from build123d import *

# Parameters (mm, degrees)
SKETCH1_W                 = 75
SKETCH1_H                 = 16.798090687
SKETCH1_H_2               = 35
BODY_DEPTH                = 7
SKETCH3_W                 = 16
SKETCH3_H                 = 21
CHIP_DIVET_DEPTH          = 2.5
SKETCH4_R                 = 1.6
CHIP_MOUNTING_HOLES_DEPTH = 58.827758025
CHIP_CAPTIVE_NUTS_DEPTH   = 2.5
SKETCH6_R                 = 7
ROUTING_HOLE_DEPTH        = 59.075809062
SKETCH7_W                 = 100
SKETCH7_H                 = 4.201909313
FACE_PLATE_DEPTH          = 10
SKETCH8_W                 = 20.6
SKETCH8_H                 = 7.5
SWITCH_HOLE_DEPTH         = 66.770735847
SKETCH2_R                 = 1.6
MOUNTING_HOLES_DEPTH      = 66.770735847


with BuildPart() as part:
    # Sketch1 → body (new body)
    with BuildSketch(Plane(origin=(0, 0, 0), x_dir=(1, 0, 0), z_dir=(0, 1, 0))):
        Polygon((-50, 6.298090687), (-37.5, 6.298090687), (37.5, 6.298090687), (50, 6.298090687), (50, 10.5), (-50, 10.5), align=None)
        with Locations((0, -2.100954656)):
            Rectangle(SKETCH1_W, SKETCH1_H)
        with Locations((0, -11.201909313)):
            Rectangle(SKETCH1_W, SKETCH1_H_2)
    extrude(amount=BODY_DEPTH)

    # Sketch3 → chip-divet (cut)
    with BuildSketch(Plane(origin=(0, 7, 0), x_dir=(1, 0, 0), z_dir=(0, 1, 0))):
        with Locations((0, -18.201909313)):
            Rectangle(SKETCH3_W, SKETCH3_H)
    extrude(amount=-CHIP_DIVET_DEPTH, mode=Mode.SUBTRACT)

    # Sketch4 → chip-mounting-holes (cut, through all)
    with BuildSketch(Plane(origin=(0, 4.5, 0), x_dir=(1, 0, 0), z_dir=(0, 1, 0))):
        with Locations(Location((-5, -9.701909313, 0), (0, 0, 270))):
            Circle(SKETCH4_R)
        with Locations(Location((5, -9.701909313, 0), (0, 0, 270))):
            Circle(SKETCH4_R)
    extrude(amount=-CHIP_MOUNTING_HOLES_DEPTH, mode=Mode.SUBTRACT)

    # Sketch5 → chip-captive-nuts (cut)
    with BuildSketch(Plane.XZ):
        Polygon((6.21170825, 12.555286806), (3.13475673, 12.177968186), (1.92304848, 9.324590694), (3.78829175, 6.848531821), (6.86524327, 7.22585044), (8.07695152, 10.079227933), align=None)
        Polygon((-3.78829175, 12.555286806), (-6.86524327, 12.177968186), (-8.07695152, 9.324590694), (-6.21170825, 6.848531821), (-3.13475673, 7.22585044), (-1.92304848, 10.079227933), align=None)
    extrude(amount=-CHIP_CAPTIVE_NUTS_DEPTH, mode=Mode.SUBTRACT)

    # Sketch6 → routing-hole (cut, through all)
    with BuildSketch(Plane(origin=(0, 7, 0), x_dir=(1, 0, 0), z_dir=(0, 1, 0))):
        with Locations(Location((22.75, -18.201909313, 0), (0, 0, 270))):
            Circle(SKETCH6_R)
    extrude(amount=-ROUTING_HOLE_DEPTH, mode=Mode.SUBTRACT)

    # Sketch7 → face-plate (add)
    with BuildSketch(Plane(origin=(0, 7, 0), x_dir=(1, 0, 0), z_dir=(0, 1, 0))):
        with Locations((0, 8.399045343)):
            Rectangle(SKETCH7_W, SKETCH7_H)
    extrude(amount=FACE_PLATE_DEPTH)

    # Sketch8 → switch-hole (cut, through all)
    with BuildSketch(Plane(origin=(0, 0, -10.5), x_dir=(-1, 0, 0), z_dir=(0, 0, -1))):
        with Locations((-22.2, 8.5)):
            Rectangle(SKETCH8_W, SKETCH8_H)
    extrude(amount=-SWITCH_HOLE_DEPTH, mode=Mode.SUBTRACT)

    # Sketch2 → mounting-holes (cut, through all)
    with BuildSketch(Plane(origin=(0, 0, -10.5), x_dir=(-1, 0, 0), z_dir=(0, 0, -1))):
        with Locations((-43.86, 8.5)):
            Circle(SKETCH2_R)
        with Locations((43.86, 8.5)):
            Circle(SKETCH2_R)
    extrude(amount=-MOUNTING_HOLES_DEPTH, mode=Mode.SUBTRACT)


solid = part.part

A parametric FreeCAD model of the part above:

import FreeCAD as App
import Part
import Sketcher

V = App.Vector
Q = App.Units.Quantity

doc = App.newDocument("Part")
params = doc.addObject("Spreadsheet::Sheet", "Params")
for row, (alias, value) in enumerate([
    ("sketch1_width", "75 mm"),
    ("sketch1_width2", "100 mm"),
    ("sketch1_height", "35 mm"),
    ("pad1_length", "7 mm"),
    ("sketch2_width", "16 mm"),
    ("sketch2_height", "21 mm"),
    ("pocket1_length", "2.5 mm"),
    ("sketch3_diameter", "3.2 mm"),
    ("sketch4_length", "3.1 mm"),
    ("pocket3_length", "2.5 mm"),
    ("sketch5_diameter", "14 mm"),
    ("sketch6_width", "100 mm"),
    ("pad2_length", "10 mm"),
    ("sketch7_width", "20.6 mm"),
    ("sketch7_height", "7.5 mm"),
    ("sketch8_diameter", "3.2 mm"),
], start=1):
    params.set(f"A{row}", alias)
    params.set(f"B{row}", "=" + value)
    params.setAlias(f"B{row}", alias)

body = doc.addObject("PartDesign::Body", "Body")

sketch1 = body.newObject("Sketcher::SketchObject", "Sketch")
sketch1.AttachmentSupport = (doc.getObject("XZ_Plane"), [""])
sketch1.MapMode = "FlatFace"
sketch1.addGeometry([
    Part.LineSegment(V(-50, -10.5, 0), V(-50, -6.3, 0)),
    Part.LineSegment(V(-50, -6.3, 0), V(-37.5, -6.3, 0)),
    Part.LineSegment(V(-37.5, -6.3, 0), V(-37.5, 28.7, 0)),
    Part.LineSegment(V(-37.5, 28.7, 0), V(37.5, 28.7, 0)),
    Part.LineSegment(V(37.5, 28.7, 0), V(37.5, -6.3, 0)),
    Part.LineSegment(V(37.5, -6.3, 0), V(50, -6.3, 0)),
    Part.LineSegment(V(50, -6.3, 0), V(50, -10.5, 0)),
    Part.LineSegment(V(50, -10.5, 0), V(-50, -10.5, 0)),
], False)
sketch1.addConstraint([
    Sketcher.Constraint("Coincident", 0, 2, 1, 1),
    Sketcher.Constraint("Coincident", 1, 2, 2, 1),
    Sketcher.Constraint("Coincident", 2, 2, 3, 1),
    Sketcher.Constraint("Coincident", 3, 2, 4, 1),
    Sketcher.Constraint("Coincident", 4, 2, 5, 1),
    Sketcher.Constraint("Coincident", 5, 2, 6, 1),
    Sketcher.Constraint("Coincident", 6, 2, 7, 1),
    Sketcher.Constraint("Coincident", 7, 2, 0, 1),
    Sketcher.Constraint("Vertical", 0),
    Sketcher.Constraint("Horizontal", 1),
    Sketcher.Constraint("Vertical", 2),
    Sketcher.Constraint("Horizontal", 3),
    Sketcher.Constraint("Vertical", 4),
    Sketcher.Constraint("Horizontal", 5),
    Sketcher.Constraint("Vertical", 6),
    Sketcher.Constraint("Horizontal", 7),
    Sketcher.Constraint("Symmetric", 1, 2, 4, 2, -2),
    Sketcher.Constraint("Equal", 1, 5),
    Sketcher.Constraint("DistanceX", 3, 1, 3, 2, Q("75 mm")),
    Sketcher.Constraint("DistanceX", 7, 2, 7, 1, Q("100 mm")),
    Sketcher.Constraint("DistanceY", 2, 1, 2, 2, Q("35 mm")),
    Sketcher.Constraint("DistanceY", 6, 2, -1, 1, Q("10.5 mm")),
    Sketcher.Constraint("DistanceY", 0, 1, 0, 2, Q("4.201909 mm")),
])
sketch1.setExpression("Constraints[18]", "Params.sketch1_width")
sketch1.setExpression("Constraints[19]", "Params.sketch1_width2")
sketch1.setExpression("Constraints[20]", "Params.sketch1_height")
pad1 = body.newObject("PartDesign::Pad", "Pad")
pad1.Profile = sketch1
pad1.setExpression("Length", "Params.pad1_length")
pad1.Reversed = True

sketch2 = body.newObject("Sketcher::SketchObject", "Sketch001")
sketch2.AttachmentSupport = (doc.getObject("XZ_Plane"), [""])
sketch2.MapMode = "FlatFace"
sketch2.AttachmentOffset = App.Placement(V(0, 0, -7), App.Rotation())
sketch2.addGeometry([
    Part.LineSegment(V(-8, 8, 0), V(-8, 29, 0)),
    Part.LineSegment(V(-8, 29, 0), V(8, 29, 0)),
    Part.LineSegment(V(8, 29, 0), V(8, 8, 0)),
    Part.LineSegment(V(8, 8, 0), V(-8, 8, 0)),
], False)
sketch2.addConstraint([
    Sketcher.Constraint("Coincident", 0, 2, 1, 1),
    Sketcher.Constraint("Coincident", 1, 2, 2, 1),
    Sketcher.Constraint("Coincident", 2, 2, 3, 1),
    Sketcher.Constraint("Coincident", 3, 2, 0, 1),
    Sketcher.Constraint("Vertical", 0),
    Sketcher.Constraint("Horizontal", 1),
    Sketcher.Constraint("Vertical", 2),
    Sketcher.Constraint("Horizontal", 3),
    Sketcher.Constraint("DistanceX", 1, 1, 1, 2, Q("16 mm")),
    Sketcher.Constraint("DistanceY", 0, 1, 0, 2, Q("21 mm")),
    Sketcher.Constraint("DistanceX", 0, 2, -1, 1, Q("8 mm")),
    Sketcher.Constraint("DistanceY", -1, 1, 0, 2, Q("28.701909 mm")),
])
sketch2.setExpression("Constraints[8]", "Params.sketch2_width")
sketch2.setExpression("Constraints[9]", "Params.sketch2_height")
pocket1 = body.newObject("PartDesign::Pocket", "Pocket")
pocket1.Profile = sketch2
pocket1.setExpression("Length", "Params.pocket1_length")
pocket1.Reversed = True

sketch3 = body.newObject("Sketcher::SketchObject", "Sketch002")
sketch3.AttachmentSupport = (doc.getObject("XZ_Plane"), [""])
sketch3.MapMode = "FlatFace"
sketch3.AttachmentOffset = App.Placement(V(0, 0, -4.5), App.Rotation())
sketch3.addGeometry([
    Part.Circle(V(-5, 9.7, 0), V(0, 0, 1), 1.6),
    Part.Circle(V(5, 9.7, 0), V(0, 0, 1), 1.6),
], False)
sketch3.addConstraint([
    Sketcher.Constraint("Equal", 0, 1),
    Sketcher.Constraint("Symmetric", 0, 3, 1, 3, -2),
    Sketcher.Constraint("Diameter", 0, Q("3.2 mm")),
    Sketcher.Constraint("DistanceX", 0, 3, -1, 1, Q("5 mm")),
    Sketcher.Constraint("DistanceY", -1, 1, 0, 3, Q("9.701909 mm")),
])
sketch3.setExpression("Constraints[2]", "Params.sketch3_diameter")
pocket2 = body.newObject("PartDesign::Pocket", "Pocket001")
pocket2.Profile = sketch3
pocket2.Type = "ThroughAll"
pocket2.Reversed = True

sketch4 = body.newObject("Sketcher::SketchObject", "Sketch003")
sketch4.AttachmentSupport = (doc.getObject("XZ_Plane"), [""])
sketch4.MapMode = "FlatFace"
sketch4.addGeometry([
    Part.LineSegment(V(6.2, 12.6, 0), V(3.1, 12.2, 0)),
    Part.LineSegment(V(3.1, 12.2, 0), V(1.9, 9.3, 0)),
    Part.LineSegment(V(1.9, 9.3, 0), V(3.8, 6.8, 0)),
    Part.LineSegment(V(3.8, 6.8, 0), V(6.9, 7.2, 0)),
    Part.LineSegment(V(6.9, 7.2, 0), V(8.1, 10.1, 0)),
    Part.LineSegment(V(8.1, 10.1, 0), V(6.2, 12.6, 0)),
    Part.LineSegment(V(-3.8, 12.6, 0), V(-6.9, 12.2, 0)),
    Part.LineSegment(V(-6.9, 12.2, 0), V(-8.1, 9.3, 0)),
    Part.LineSegment(V(-8.1, 9.3, 0), V(-6.2, 6.8, 0)),
    Part.LineSegment(V(-6.2, 6.8, 0), V(-3.1, 7.2, 0)),
    Part.LineSegment(V(-3.1, 7.2, 0), V(-1.9, 10.1, 0)),
    Part.LineSegment(V(-1.9, 10.1, 0), V(-3.8, 12.6, 0)),
], False)
sketch4.addConstraint([
    Sketcher.Constraint("Coincident", 0, 2, 1, 1),
    Sketcher.Constraint("Coincident", 1, 2, 2, 1),
    Sketcher.Constraint("Coincident", 2, 2, 3, 1),
    Sketcher.Constraint("Coincident", 3, 2, 4, 1),
    Sketcher.Constraint("Coincident", 4, 2, 5, 1),
    Sketcher.Constraint("Coincident", 5, 2, 0, 1),
    Sketcher.Constraint("Coincident", 6, 2, 7, 1),
    Sketcher.Constraint("Coincident", 7, 2, 8, 1),
    Sketcher.Constraint("Coincident", 8, 2, 9, 1),
    Sketcher.Constraint("Coincident", 9, 2, 10, 1),
    Sketcher.Constraint("Coincident", 10, 2, 11, 1),
    Sketcher.Constraint("Coincident", 11, 2, 6, 1),
    Sketcher.Constraint("Parallel", 0, 3),
    Sketcher.Constraint("Parallel", 1, 4),
    Sketcher.Constraint("Parallel", 2, 5),
    Sketcher.Constraint("Parallel", 3, 6),
    Sketcher.Constraint("Parallel", 4, 7),
    Sketcher.Constraint("Parallel", 5, 8),
    Sketcher.Constraint("Parallel", 6, 9),
    Sketcher.Constraint("Parallel", 7, 10),
    Sketcher.Constraint("Parallel", 8, 11),
    Sketcher.Constraint("Horizontal", 0, 2, 6, 2),
    Sketcher.Constraint("Horizontal", 1, 2, 7, 2),
    Sketcher.Constraint("Horizontal", 2, 2, 8, 2),
    Sketcher.Constraint("Horizontal", 3, 2, 9, 2),
    Sketcher.Constraint("Horizontal", 4, 2, 10, 2),
    Sketcher.Constraint("Equal", 0, 1),
    Sketcher.Constraint("Equal", 1, 2),
    Sketcher.Constraint("Equal", 2, 3),
    Sketcher.Constraint("DistanceX", 6, 2, 0, 2, Q("10 mm")),
    Sketcher.Constraint("Distance", 0, Q("3.1 mm")),
    Sketcher.Constraint("DistanceY", -1, 1, 0, 2, Q("12.177968 mm")),
    Sketcher.Constraint("DistanceX", -1, 1, 1, 2, Q("1.923048 mm")),
    Sketcher.Constraint("DistanceY", -1, 1, 1, 2, Q("9.324591 mm")),
    Sketcher.Constraint("DistanceX", -1, 1, 2, 2, Q("3.788292 mm")),
    Sketcher.Constraint("DistanceY", -1, 1, 3, 2, Q("7.22585 mm")),
])
sketch4.setExpression("Constraints[30]", "Params.sketch4_length")
pocket3 = body.newObject("PartDesign::Pocket", "Pocket002")
pocket3.Profile = sketch4
pocket3.setExpression("Length", "Params.pocket3_length")

sketch5 = body.newObject("Sketcher::SketchObject", "Sketch004")
sketch5.AttachmentSupport = (doc.getObject("XZ_Plane"), [""])
sketch5.MapMode = "FlatFace"
sketch5.AttachmentOffset = App.Placement(V(0, 0, -7), App.Rotation())
sketch5.addGeometry(Part.Circle(V(23, 18, 0), V(0, 0, 1), 7), False)
sketch5.addConstraint([
    Sketcher.Constraint("Diameter", 0, Q("14 mm")),
    Sketcher.Constraint("DistanceX", -1, 1, 0, 3, Q("22.75 mm")),
    Sketcher.Constraint("DistanceY", -1, 1, 0, 3, Q("18.201909 mm")),
])
sketch5.setExpression("Constraints[0]", "Params.sketch5_diameter")
pocket4 = body.newObject("PartDesign::Pocket", "Pocket003")
pocket4.Profile = sketch5
pocket4.Type = "ThroughAll"
pocket4.Reversed = True

sketch6 = body.newObject("Sketcher::SketchObject", "Sketch005")
sketch6.AttachmentSupport = (doc.getObject("XZ_Plane"), [""])
sketch6.MapMode = "FlatFace"
sketch6.AttachmentOffset = App.Placement(V(0, 0, -7), App.Rotation())
sketch6.addGeometry([
    Part.LineSegment(V(-50, -10.5, 0), V(-50, -6.3, 0)),
    Part.LineSegment(V(-50, -6.3, 0), V(50, -6.3, 0)),
    Part.LineSegment(V(50, -6.3, 0), V(50, -10.5, 0)),
    Part.LineSegment(V(50, -10.5, 0), V(-50, -10.5, 0)),
], False)
sketch6.addConstraint([
    Sketcher.Constraint("Coincident", 0, 2, 1, 1),
    Sketcher.Constraint("Coincident", 1, 2, 2, 1),
    Sketcher.Constraint("Coincident", 2, 2, 3, 1),
    Sketcher.Constraint("Coincident", 3, 2, 0, 1),
    Sketcher.Constraint("Vertical", 0),
    Sketcher.Constraint("Horizontal", 1),
    Sketcher.Constraint("Vertical", 2),
    Sketcher.Constraint("Horizontal", 3),
    Sketcher.Constraint("DistanceX", 1, 1, 1, 2, Q("100 mm")),
    Sketcher.Constraint("DistanceX", 0, 2, -1, 1, Q("50 mm")),
    Sketcher.Constraint("DistanceY", 2, 2, -1, 1, Q("10.5 mm")),
    Sketcher.Constraint("DistanceY", 0, 1, 0, 2, Q("4.201909 mm")),
])
sketch6.setExpression("Constraints[8]", "Params.sketch6_width")
pad2 = body.newObject("PartDesign::Pad", "Pad001")
pad2.Profile = sketch6
pad2.setExpression("Length", "Params.pad2_length")
pad2.Reversed = True

sketch7 = body.newObject("Sketcher::SketchObject", "Sketch006")
sketch7.AttachmentSupport = (doc.getObject("XY_Plane"), [""])
sketch7.MapMode = "FlatFace"
sketch7.AttachmentOffset = App.Placement(V(0, 0, -10.5), App.Rotation())
sketch7.addGeometry([
    Part.LineSegment(V(32, 12, 0), V(32, 5, 0)),
    Part.LineSegment(V(32, 5, 0), V(12, 5, 0)),
    Part.LineSegment(V(12, 5, 0), V(12, 12, 0)),
    Part.LineSegment(V(12, 12, 0), V(32, 12, 0)),
], False)
sketch7.addConstraint([
    Sketcher.Constraint("Coincident", 0, 2, 1, 1),
    Sketcher.Constraint("Coincident", 1, 2, 2, 1),
    Sketcher.Constraint("Coincident", 2, 2, 3, 1),
    Sketcher.Constraint("Coincident", 3, 2, 0, 1),
    Sketcher.Constraint("Vertical", 0),
    Sketcher.Constraint("Horizontal", 1),
    Sketcher.Constraint("Vertical", 2),
    Sketcher.Constraint("Horizontal", 3),
    Sketcher.Constraint("DistanceX", 1, 2, 1, 1, Q("20.6 mm")),
    Sketcher.Constraint("DistanceY", 0, 2, 0, 1, Q("7.5 mm")),
    Sketcher.Constraint("DistanceX", -1, 1, 0, 2, Q("32.5 mm")),
    Sketcher.Constraint("DistanceY", -1, 1, 0, 2, Q("4.75 mm")),
])
sketch7.setExpression("Constraints[8]", "Params.sketch7_width")
sketch7.setExpression("Constraints[9]", "Params.sketch7_height")
pocket5 = body.newObject("PartDesign::Pocket", "Pocket004")
pocket5.Profile = sketch7
pocket5.Type = "ThroughAll"
pocket5.Reversed = True

sketch8 = body.newObject("Sketcher::SketchObject", "Sketch007")
sketch8.AttachmentSupport = (doc.getObject("XY_Plane"), [""])
sketch8.MapMode = "FlatFace"
sketch8.AttachmentOffset = App.Placement(V(0, 0, -10.5), App.Rotation())
sketch8.addGeometry([
    Part.Circle(V(43.9, 8.5, 0), V(0, 0, 1), 1.6),
    Part.Circle(V(-43.9, 8.5, 0), V(0, 0, 1), 1.6),
], False)
sketch8.addConstraint([
    Sketcher.Constraint("Equal", 0, 1),
    Sketcher.Constraint("Symmetric", 0, 3, 1, 3, -2),
    Sketcher.Constraint("Diameter", 0, Q("3.2 mm")),
    Sketcher.Constraint("DistanceY", -1, 1, 0, 3, Q("8.5 mm")),
    Sketcher.Constraint("DistanceX", -1, 1, 0, 3, Q("43.86 mm")),
])
sketch8.setExpression("Constraints[2]", "Params.sketch8_diameter")
pocket6 = body.newObject("PartDesign::Pocket", "Pocket005")
pocket6.Profile = sketch8
pocket6.Type = "ThroughAll"
pocket6.Reversed = True

doc.recompute()
